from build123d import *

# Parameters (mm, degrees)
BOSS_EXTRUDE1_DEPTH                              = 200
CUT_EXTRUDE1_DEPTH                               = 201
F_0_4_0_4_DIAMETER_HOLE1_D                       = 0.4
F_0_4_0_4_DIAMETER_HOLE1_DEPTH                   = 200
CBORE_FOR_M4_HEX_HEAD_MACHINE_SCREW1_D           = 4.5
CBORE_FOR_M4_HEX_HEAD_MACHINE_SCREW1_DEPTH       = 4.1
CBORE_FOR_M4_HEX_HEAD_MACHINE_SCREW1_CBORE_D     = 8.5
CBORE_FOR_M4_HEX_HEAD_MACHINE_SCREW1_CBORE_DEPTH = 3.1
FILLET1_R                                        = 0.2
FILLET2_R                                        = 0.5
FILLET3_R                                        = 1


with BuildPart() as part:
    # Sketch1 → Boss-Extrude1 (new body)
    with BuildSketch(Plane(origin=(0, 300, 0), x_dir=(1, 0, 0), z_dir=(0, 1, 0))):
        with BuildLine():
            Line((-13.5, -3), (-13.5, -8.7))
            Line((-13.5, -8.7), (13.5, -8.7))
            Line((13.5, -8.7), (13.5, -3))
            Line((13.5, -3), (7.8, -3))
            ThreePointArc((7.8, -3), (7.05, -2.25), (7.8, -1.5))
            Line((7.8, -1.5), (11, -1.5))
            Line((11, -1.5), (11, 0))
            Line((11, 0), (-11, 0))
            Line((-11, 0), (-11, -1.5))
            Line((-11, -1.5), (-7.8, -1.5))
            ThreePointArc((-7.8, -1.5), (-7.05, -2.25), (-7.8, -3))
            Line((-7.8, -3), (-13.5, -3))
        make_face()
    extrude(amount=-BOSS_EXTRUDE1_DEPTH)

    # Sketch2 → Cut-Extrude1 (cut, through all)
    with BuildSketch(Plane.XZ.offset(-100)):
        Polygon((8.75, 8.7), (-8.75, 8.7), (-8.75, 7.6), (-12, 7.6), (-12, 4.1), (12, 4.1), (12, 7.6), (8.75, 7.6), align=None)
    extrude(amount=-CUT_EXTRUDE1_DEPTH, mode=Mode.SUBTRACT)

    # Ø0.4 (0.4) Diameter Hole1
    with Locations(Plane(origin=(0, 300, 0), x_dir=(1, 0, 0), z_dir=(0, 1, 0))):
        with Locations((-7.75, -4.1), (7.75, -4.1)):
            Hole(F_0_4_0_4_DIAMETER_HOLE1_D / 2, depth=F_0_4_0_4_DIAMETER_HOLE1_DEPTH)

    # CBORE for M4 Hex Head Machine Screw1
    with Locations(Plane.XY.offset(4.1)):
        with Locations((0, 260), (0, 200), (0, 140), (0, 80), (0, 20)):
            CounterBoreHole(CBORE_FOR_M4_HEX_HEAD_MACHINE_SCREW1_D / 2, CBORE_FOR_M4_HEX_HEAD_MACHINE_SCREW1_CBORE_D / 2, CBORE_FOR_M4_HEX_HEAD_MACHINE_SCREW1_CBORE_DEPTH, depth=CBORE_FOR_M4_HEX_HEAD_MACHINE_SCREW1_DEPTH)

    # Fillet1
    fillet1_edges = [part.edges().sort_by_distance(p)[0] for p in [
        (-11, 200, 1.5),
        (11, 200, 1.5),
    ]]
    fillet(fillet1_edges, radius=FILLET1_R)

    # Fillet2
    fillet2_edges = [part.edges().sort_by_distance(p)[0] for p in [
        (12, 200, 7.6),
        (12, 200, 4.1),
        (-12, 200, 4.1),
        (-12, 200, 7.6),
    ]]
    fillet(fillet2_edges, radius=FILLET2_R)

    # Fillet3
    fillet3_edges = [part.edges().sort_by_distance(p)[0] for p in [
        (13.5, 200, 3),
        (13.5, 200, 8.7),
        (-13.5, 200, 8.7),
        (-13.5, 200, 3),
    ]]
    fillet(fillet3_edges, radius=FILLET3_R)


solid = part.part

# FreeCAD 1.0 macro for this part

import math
import FreeCAD as App
import Part
import Sketcher
from FreeCAD import Vector
Q = App.Units.Quantity


def edges_at(feature, points):
    """Names of the edges that pass closest to the given points."""
    edges = feature.Shape.Edges
    near = lambda p: min(range(len(edges)), key=lambda i: edges[i].distToShape(Part.Vertex(*p))[0])
    return sorted({f"Edge{near(p) + 1}" for p in points})


def add_polygon(sketch, points):
    """Adds a closed chain of lines whose ends are joined by coincident constraints."""
    first, n = sketch.GeometryCount, len(points)
    for a, b in zip(points, points[1:] + points[:1]):
        sketch.addGeometry(Part.LineSegment(App.Vector(*a, 0), App.Vector(*b, 0)), False)
    for i in range(n):
        sketch.addConstraint(Sketcher.Constraint("Coincident", first + i, 2, first + (i + 1) % n, 1))

doc = App.newDocument("Part")
body = doc.addObject("PartDesign::Body", "Body")

# Sketch on XZ plane
sketch1 = body.newObject("Sketcher::SketchObject", "Sketch")
sketch1.AttachmentSupport = (doc.getObject("XZ_Plane"), [""])
sketch1.MapMode = "FlatFace"
sketch1.AttachmentOffset = App.Placement(Vector(0, 0, -300), App.Rotation())
sketch1.addGeometry(Part.LineSegment(Vector(-13.5, 3, 0), Vector(-13.5, 8.7, 0)), False)
sketch1.addGeometry(Part.LineSegment(Vector(-13.5, 8.7, 0), Vector(13.5, 8.7, 0)), False)
sketch1.addGeometry(Part.LineSegment(Vector(13.5, 8.7, 0), Vector(13.5, 3, 0)), False)
sketch1.addGeometry(Part.LineSegment(Vector(13.5, 3, 0), Vector(7.8, 3, 0)), False)
sketch1.addGeometry(Part.ArcOfCircle(Part.Circle(Vector(7.8, 2.2, 0), Vector(0, 0, 1), 0.8), math.radians(90), math.radians(270)), False)
sketch1.addGeometry(Part.LineSegment(Vector(7.8, 1.5, 0), Vector(11, 1.5, 0)), False)
sketch1.addGeometry(Part.LineSegment(Vector(11, 1.5, 0), Vector(11, 0, 0)), False)
sketch1.addGeometry(Part.LineSegment(Vector(11, 0, 0), Vector(-11, 0, 0)), False)
sketch1.addGeometry(Part.LineSegment(Vector(-11, 0, 0), Vector(-11, 1.5, 0)), False)
sketch1.addGeometry(Part.LineSegment(Vector(-11, 1.5, 0), Vector(-7.8, 1.5, 0)), False)
sketch1.addGeometry(Part.ArcOfCircle(Part.Circle(Vector(-7.8, 2.2, 0), Vector(0, 0, 1), 0.8), math.radians(-90), math.radians(90)), False)
sketch1.addGeometry(Part.LineSegment(Vector(-7.8, 3, 0), Vector(-13.5, 3, 0)), False)
sketch1.addConstraint(Sketcher.Constraint("Coincident", 0, 2, 1, 1))
sketch1.addConstraint(Sketcher.Constraint("Coincident", 1, 2, 2, 1))
sketch1.addConstraint(Sketcher.Constraint("Coincident", 2, 2, 3, 1))
sketch1.addConstraint(Sketcher.Constraint("Tangent", 3, 2, 4, 1))
sketch1.addConstraint(Sketcher.Constraint("Tangent", 4, 2, 5, 1))
sketch1.addConstraint(Sketcher.Constraint("Coincident", 5, 2, 6, 1))
sketch1.addConstraint(Sketcher.Constraint("Coincident", 6, 2, 7, 1))
sketch1.addConstraint(Sketcher.Constraint("Coincident", 7, 2, 8, 1))
sketch1.addConstraint(Sketcher.Constraint("Coincident", 8, 2, 9, 1))
sketch1.addConstraint(Sketcher.Constraint("Tangent", 9, 2, 10, 1))
sketch1.addConstraint(Sketcher.Constraint("Tangent", 10, 2, 11, 1))
sketch1.addConstraint(Sketcher.Constraint("Coincident", 11, 2, 0, 1))
sketch1.addConstraint(Sketcher.Constraint("Vertical", 0))
sketch1.addConstraint(Sketcher.Constraint("Horizontal", 1))
sketch1.addConstraint(Sketcher.Constraint("Vertical", 2))
sketch1.addConstraint(Sketcher.Constraint("Horizontal", 3))
sketch1.addConstraint(Sketcher.Constraint("Horizontal", 5))
sketch1.addConstraint(Sketcher.Constraint("Vertical", 6))
sketch1.addConstraint(Sketcher.Constraint("Horizontal", 7))
sketch1.addConstraint(Sketcher.Constraint("Vertical", 8))
sketch1.addConstraint(Sketcher.Constraint("Horizontal", 9))
sketch1.addConstraint(Sketcher.Constraint("Horizontal", 11))
sketch1.addConstraint(Sketcher.Constraint("Equal", 4, 10))
sketch1.addConstraint(Sketcher.Constraint("Symmetric", 6, 2, 7, 2, -1, 1))
sketch1.addConstraint(Sketcher.Constraint("Symmetric", 4, 3, 10, 3, -2))
sketch1.addConstraint(Sketcher.Constraint("Equal", 3, 11))
sketch1.addConstraint(Sketcher.Constraint("Equal", 11, 0))
sketch1.addConstraint(Sketcher.Constraint("DistanceX", 1, 1, 1, 2, Q("27 mm")))
sketch1.addConstraint(Sketcher.Constraint("DistanceX", 7, 2, 7, 1, Q("22 mm")))
sketch1.addConstraint(Sketcher.Constraint("Radius", 4, Q("0.75 mm")))
sketch1.addConstraint(Sketcher.Constraint("DistanceX", 3, 2, 3, 1, Q("5.7 mm")))
sketch1.addConstraint(Sketcher.Constraint("DistanceY", 6, 2, 6, 1, Q("1.5 mm")))
pad1 = body.newObject("PartDesign::Pad", "Pad")
pad1.Profile = sketch1
pad1.Length = 200

# Sketch on XZ plane
sketch2 = body.newObject("Sketcher::SketchObject", "Sketch001")
sketch2.AttachmentSupport = (doc.getObject("XZ_Plane"), [""])
sketch2.MapMode = "FlatFace"
sketch2.AttachmentOffset = App.Placement(Vector(0, 0, -100), App.Rotation())
add_polygon(sketch2, [(8.8, 8.7), (-8.8, 8.7), (-8.8, 7.6), (-12, 7.6), (-12, 4.1), (12, 4.1), (12, 7.6), (8.8, 7.6)])  # lines 0-7
sketch2.addConstraint(Sketcher.Constraint("Horizontal", 0))
sketch2.addConstraint(Sketcher.Constraint("Vertical", 1))
sketch2.addConstraint(Sketcher.Constraint("Horizontal", 2))
sketch2.addConstraint(Sketcher.Constraint("Vertical", 3))
sketch2.addConstraint(Sketcher.Constraint("Horizontal", 4))
sketch2.addConstraint(Sketcher.Constraint("Vertical", 5))
sketch2.addConstraint(Sketcher.Constraint("Horizontal", 6))
sketch2.addConstraint(Sketcher.Constraint("Vertical", 7))
sketch2.addConstraint(Sketcher.Constraint("Symmetric", 2, 2, 5, 2, -2))
sketch2.addConstraint(Sketcher.Constraint("Equal", 2, 6))
sketch2.addConstraint(Sketcher.Constraint("DistanceX", 4, 1, 4, 2, Q("24 mm")))
sketch2.addConstraint(Sketcher.Constraint("DistanceX", 0, 2, 0, 1, Q("17.5 mm")))
sketch2.addConstraint(Sketcher.Constraint("DistanceY", 1, 2, 1, 1, Q("1.1 mm")))
sketch2.addConstraint(Sketcher.Constraint("DistanceY", 3, 2, 3, 1, Q("3.5 mm")))
sketch2.addConstraint(Sketcher.Constraint("DistanceY", -1, 1, 0, 2, Q("8.7 mm")))
pocket1 = body.newObject("PartDesign::Pocket", "Pocket")
pocket1.Profile = sketch2
pocket1.Type = "ThroughAll"

# Sketch on XZ plane
sketch3 = body.newObject("Sketcher::SketchObject", "Sketch002")
sketch3.AttachmentSupport = (doc.getObject("XZ_Plane"), [""])
sketch3.MapMode = "FlatFace"
sketch3.AttachmentOffset = App.Placement(Vector(0, 0, -300), App.Rotation())
sketch3.addGeometry(Part.Circle(Vector(-7.75, 4.1, 0), Vector(0, 0, 1), 0.2), False)
sketch3.addGeometry(Part.Circle(Vector(7.75, 4.1, 0), Vector(0, 0, 1), 0.2), False)
sketch3.addConstraint(Sketcher.Constraint("Equal", 0, 1))
sketch3.addConstraint(Sketcher.Constraint("Symmetric", 0, 3, 1, 3, -2))
sketch3.addConstraint(Sketcher.Constraint("Diameter", 0, Q("0.4 mm")))
sketch3.addConstraint(Sketcher.Constraint("DistanceY", -1, 1, 0, 3, Q("4.1 mm")))
sketch3.addConstraint(Sketcher.Constraint("DistanceX", 0, 3, 1, 3, Q("15.5 mm")))
doc.recompute()
hole = body.newObject("PartDesign::Hole", "Hole")
hole.Profile = sketch3
hole.ThreadType = "None"
hole.Diameter = 0.4
hole.DepthType = "Dimension"
hole.Depth = 200
hole.DrillPoint = "Flat"
hole.Reversed = True

# Sketch on XY plane
sketch4 = body.newObject("Sketcher::SketchObject", "Sketch003")
sketch4.AttachmentSupport = (doc.getObject("XY_Plane"), [""])
sketch4.MapMode = "FlatFace"
sketch4.AttachmentOffset = App.Placement(Vector(0, 0, 4.1), App.Rotation())
sketch4.addGeometry(Part.Circle(Vector(0, 260, 0), Vector(0, 0, 1), 2.2), False)
sketch4.addGeometry(Part.Circle(Vector(0, 200, 0), Vector(0, 0, 1), 2.2), False)
sketch4.addGeometry(Part.Circle(Vector(0, 140, 0), Vector(0, 0, 1), 2.2), False)
sketch4.addGeometry(Part.Circle(Vector(0, 80, 0), Vector(0, 0, 1), 2.2), False)
sketch4.addGeometry(Part.Circle(Vector(0, 20, 0), Vector(0, 0, 1), 2.2), False)
sketch4.addConstraint(Sketcher.Constraint("Equal", 0, 1))
sketch4.addConstraint(Sketcher.Constraint("Equal", 1, 2))
sketch4.addConstraint(Sketcher.Constraint("Equal", 2, 3))
sketch4.addConstraint(Sketcher.Constraint("Equal", 3, 4))
sketch4.addConstraint(Sketcher.Constraint("PointOnObject", 0, 3, -2))
sketch4.addConstraint(Sketcher.Constraint("PointOnObject", 1, 3, -2))
sketch4.addConstraint(Sketcher.Constraint("PointOnObject", 2, 3, -2))
sketch4.addConstraint(Sketcher.Constraint("PointOnObject", 3, 3, -2))
sketch4.addConstraint(Sketcher.Constraint("PointOnObject", 4, 3, -2))
sketch4.addConstraint(Sketcher.Constraint("Diameter", 0, Q("4.5 mm")))
sketch4.addConstraint(Sketcher.Constraint("DistanceY", -1, 1, 0, 3, Q("260 mm")))
sketch4.addConstraint(Sketcher.Constraint("DistanceY", -1, 1, 1, 3, Q("200 mm")))
sketch4.addConstraint(Sketcher.Constraint("DistanceY", -1, 1, 2, 3, Q("140 mm")))
sketch4.addConstraint(Sketcher.Constraint("DistanceY", -1, 1, 3, 3, Q("80 mm")))
sketch4.addConstraint(Sketcher.Constraint("DistanceY", -1, 1, 4, 3, Q("20 mm")))
doc.recompute()
hole2 = body.newObject("PartDesign::Hole", "Hole001")
hole2.Profile = sketch4
hole2.ThreadType = "None"
hole2.Diameter = 4.5
hole2.DepthType = "Dimension"
hole2.Depth = 4.1
hole2.DrillPoint = "Flat"
hole2.HoleCutType = "Counterbore"
hole2.HoleCutDiameter = 8.5
hole2.HoleCutDepth = 3.1
doc.recompute()

fillet = body.newObject("PartDesign::Fillet", "Fillet")
fillet.Base = (hole2, edges_at(hole2, [(-11, 200, 1.5), (11, 200, 1.5)]))
fillet.Radius = 0.2
doc.recompute()

fillet2 = body.newObject("PartDesign::Fillet", "Fillet001")
fillet2.Base = (fillet, edges_at(fillet, [
    (12, 200, 7.6),
    (12, 200, 4.1),
    (-12, 200, 4.1),
    (-12, 200, 7.6),
]))
fillet2.Radius = 0.5
doc.recompute()

fillet3 = body.newObject("PartDesign::Fillet", "Fillet002")
fillet3.Base = (fillet2, edges_at(fillet2, [
    (13.5, 200, 3),
    (13.5, 200, 8.7),
    (-13.5, 200, 8.7),
    (-13.5, 200, 3),
]))
fillet3.Radius = 1

doc.recompute()
